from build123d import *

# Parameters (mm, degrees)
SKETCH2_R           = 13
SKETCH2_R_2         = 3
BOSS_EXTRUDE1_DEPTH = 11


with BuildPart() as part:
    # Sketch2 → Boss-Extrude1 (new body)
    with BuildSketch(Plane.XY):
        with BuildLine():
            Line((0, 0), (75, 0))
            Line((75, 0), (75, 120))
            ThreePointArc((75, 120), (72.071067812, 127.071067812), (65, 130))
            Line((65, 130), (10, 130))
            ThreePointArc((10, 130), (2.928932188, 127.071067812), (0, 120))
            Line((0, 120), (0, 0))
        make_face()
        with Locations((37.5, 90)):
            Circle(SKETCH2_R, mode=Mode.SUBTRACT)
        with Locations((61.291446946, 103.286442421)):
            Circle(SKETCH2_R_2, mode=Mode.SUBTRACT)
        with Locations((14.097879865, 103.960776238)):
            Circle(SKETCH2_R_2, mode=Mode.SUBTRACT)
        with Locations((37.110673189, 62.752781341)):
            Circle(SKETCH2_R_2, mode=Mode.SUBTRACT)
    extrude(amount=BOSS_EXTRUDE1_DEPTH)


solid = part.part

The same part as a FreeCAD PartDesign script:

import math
import FreeCAD as App
import Part
import Sketcher
from FreeCAD import Vector

doc = App.newDocument("Part")
params = doc.addObject("Spreadsheet::Sheet", "Params")
for row, (alias, value) in enumerate([
    ("sketch1_diameter", "6 mm"),
    ("sketch1_diameter2", "26 mm"),
    ("sketch1_radius", "10 mm"),
    ("sketch1_width", "75 mm"),
    ("sketch1_height", "120 mm"),
    ("pad1_length", "11 mm"),
], start=1):
    params.set(f"A{row}", alias)
    params.set(f"B{row}", "=" + value)
    params.setAlias(f"B{row}", alias)

body = doc.addObject("PartDesign::Body", "Body")

sketch1 = body.newObject("Sketcher::SketchObject", "Sketch")
sketch1.AttachmentSupport = (doc.getObject("XY_Plane"), [""])
sketch1.MapMode = "FlatFace"
sketch1.addGeometry(Part.LineSegment(Vector(0, 0, 0), Vector(75, 0, 0)), False)
sketch1.addGeometry(Part.LineSegment(Vector(75, 0, 0), Vector(75, 120, 0)), False)
sketch1.addGeometry(Part.ArcOfCircle(Part.Circle(Vector(65, 120, 0), Vector(0, 0, 1), 10), math.radians(0), math.radians(90)), False)
sketch1.addGeometry(Part.LineSegment(Vector(65, 130, 0), Vector(10, 130, 0)), False)
sketch1.addGeometry(Part.ArcOfCircle(Part.Circle(Vector(10, 120, 0), Vector(0, 0, 1), 10), math.radians(90), math.radians(180)), False)
sketch1.addGeometry(Part.LineSegment(Vector(0, 120, 0), Vector(0, 0, 0)), False)
sketch1.addGeometry(Part.Circle(Vector(37.110673, 62.752781, 0), Vector(0, 0, 1), 3), False)
sketch1.addGeometry(Part.Circle(Vector(37.5, 90, 0), Vector(0, 0, 1), 13), False)
sketch1.addGeometry(Part.Circle(Vector(14.09788, 103.960776, 0), Vector(0, 0, 1), 3), False)
sketch1.addGeometry(Part.Circle(Vector(61.291447, 103.286442, 0), Vector(0, 0, 1), 3), False)
sketch1.addConstraint(Sketcher.Constraint("Coincident", 0, 2, 1, 1))
sketch1.addConstraint(Sketcher.Constraint("Tangent", 1, 2, 2, 1))
sketch1.addConstraint(Sketcher.Constraint("Tangent", 2, 2, 3, 1))
sketch1.addConstraint(Sketcher.Constraint("Tangent", 3, 2, 4, 1))
sketch1.addConstraint(Sketcher.Constraint("Tangent", 4, 2, 5, 1))
sketch1.addConstraint(Sketcher.Constraint("Coincident", 5, 2, 0, 1))
sketch1.addConstraint(Sketcher.Constraint("Horizontal", 0))
sketch1.addConstraint(Sketcher.Constraint("Vertical", 1))
sketch1.addConstraint(Sketcher.Constraint("Horizontal", 3))
sketch1.addConstraint(Sketcher.Constraint("Vertical", 5))
sketch1.addConstraint(Sketcher.Constraint("Coincident", 5, 2, -1, 1))
sketch1.addConstraint(Sketcher.Constraint("Equal", 2, 4))
sketch1.addConstraint(Sketcher.Constraint("Equal", 6, 8))
sketch1.addConstraint(Sketcher.Constraint("Equal", 8, 9))
sketch1.addConstraint(Sketcher.Constraint("Diameter", 6, 6.0))
sketch1.addConstraint(Sketcher.Constraint("Diameter", 7, 26.0))
sketch1.addConstraint(Sketcher.Constraint("Radius", 2, 10.0))
sketch1.addConstraint(Sketcher.Constraint("DistanceX", 0, 1, 0, 2, 75.0))
sketch1.addConstraint(Sketcher.Constraint("DistanceY", 1, 1, 1, 2, 120.0))
sketch1.addConstraint(Sketcher.Constraint("DistanceY", -1, 1, 7, 3, 90.0))
sketch1.addConstraint(Sketcher.Constraint("DistanceX", -1, 1, 7, 3, 37.5))
sketch1.addConstraint(Sketcher.Constraint("DistanceY", -1, 1, 6, 3, 62.752781))
sketch1.addConstraint(Sketcher.Constraint("DistanceX", -1, 1, 8, 3, 14.09788))
sketch1.addConstraint(Sketcher.Constraint("DistanceY", 6, 3, 9, 3, 40.533661))
sketch1.addConstraint(Sketcher.Constraint("DistanceX", -1, 1, 6, 3, 37.110673))
sketch1.addConstraint(Sketcher.Constraint("DistanceY", -1, 1, 8, 3, 103.960776))
sketch1.addConstraint(Sketcher.Constraint("DistanceX", -1, 1, 9, 3, 61.291447))
sketch1.setExpression("Constraints[14]", "Params.sketch1_diameter")
sketch1.setExpression("Constraints[15]", "Params.sketch1_diameter2")
sketch1.setExpression("Constraints[16]", "Params.sketch1_radius")
sketch1.setExpression("Constraints[17]", "Params.sketch1_width")
sketch1.setExpression("Constraints[18]", "Params.sketch1_height")
pad1 = body.newObject("PartDesign::Pad", "Pad")
pad1.Profile = sketch1
pad1.setExpression("Length", "Params.pad1_length")

doc.recompute()
